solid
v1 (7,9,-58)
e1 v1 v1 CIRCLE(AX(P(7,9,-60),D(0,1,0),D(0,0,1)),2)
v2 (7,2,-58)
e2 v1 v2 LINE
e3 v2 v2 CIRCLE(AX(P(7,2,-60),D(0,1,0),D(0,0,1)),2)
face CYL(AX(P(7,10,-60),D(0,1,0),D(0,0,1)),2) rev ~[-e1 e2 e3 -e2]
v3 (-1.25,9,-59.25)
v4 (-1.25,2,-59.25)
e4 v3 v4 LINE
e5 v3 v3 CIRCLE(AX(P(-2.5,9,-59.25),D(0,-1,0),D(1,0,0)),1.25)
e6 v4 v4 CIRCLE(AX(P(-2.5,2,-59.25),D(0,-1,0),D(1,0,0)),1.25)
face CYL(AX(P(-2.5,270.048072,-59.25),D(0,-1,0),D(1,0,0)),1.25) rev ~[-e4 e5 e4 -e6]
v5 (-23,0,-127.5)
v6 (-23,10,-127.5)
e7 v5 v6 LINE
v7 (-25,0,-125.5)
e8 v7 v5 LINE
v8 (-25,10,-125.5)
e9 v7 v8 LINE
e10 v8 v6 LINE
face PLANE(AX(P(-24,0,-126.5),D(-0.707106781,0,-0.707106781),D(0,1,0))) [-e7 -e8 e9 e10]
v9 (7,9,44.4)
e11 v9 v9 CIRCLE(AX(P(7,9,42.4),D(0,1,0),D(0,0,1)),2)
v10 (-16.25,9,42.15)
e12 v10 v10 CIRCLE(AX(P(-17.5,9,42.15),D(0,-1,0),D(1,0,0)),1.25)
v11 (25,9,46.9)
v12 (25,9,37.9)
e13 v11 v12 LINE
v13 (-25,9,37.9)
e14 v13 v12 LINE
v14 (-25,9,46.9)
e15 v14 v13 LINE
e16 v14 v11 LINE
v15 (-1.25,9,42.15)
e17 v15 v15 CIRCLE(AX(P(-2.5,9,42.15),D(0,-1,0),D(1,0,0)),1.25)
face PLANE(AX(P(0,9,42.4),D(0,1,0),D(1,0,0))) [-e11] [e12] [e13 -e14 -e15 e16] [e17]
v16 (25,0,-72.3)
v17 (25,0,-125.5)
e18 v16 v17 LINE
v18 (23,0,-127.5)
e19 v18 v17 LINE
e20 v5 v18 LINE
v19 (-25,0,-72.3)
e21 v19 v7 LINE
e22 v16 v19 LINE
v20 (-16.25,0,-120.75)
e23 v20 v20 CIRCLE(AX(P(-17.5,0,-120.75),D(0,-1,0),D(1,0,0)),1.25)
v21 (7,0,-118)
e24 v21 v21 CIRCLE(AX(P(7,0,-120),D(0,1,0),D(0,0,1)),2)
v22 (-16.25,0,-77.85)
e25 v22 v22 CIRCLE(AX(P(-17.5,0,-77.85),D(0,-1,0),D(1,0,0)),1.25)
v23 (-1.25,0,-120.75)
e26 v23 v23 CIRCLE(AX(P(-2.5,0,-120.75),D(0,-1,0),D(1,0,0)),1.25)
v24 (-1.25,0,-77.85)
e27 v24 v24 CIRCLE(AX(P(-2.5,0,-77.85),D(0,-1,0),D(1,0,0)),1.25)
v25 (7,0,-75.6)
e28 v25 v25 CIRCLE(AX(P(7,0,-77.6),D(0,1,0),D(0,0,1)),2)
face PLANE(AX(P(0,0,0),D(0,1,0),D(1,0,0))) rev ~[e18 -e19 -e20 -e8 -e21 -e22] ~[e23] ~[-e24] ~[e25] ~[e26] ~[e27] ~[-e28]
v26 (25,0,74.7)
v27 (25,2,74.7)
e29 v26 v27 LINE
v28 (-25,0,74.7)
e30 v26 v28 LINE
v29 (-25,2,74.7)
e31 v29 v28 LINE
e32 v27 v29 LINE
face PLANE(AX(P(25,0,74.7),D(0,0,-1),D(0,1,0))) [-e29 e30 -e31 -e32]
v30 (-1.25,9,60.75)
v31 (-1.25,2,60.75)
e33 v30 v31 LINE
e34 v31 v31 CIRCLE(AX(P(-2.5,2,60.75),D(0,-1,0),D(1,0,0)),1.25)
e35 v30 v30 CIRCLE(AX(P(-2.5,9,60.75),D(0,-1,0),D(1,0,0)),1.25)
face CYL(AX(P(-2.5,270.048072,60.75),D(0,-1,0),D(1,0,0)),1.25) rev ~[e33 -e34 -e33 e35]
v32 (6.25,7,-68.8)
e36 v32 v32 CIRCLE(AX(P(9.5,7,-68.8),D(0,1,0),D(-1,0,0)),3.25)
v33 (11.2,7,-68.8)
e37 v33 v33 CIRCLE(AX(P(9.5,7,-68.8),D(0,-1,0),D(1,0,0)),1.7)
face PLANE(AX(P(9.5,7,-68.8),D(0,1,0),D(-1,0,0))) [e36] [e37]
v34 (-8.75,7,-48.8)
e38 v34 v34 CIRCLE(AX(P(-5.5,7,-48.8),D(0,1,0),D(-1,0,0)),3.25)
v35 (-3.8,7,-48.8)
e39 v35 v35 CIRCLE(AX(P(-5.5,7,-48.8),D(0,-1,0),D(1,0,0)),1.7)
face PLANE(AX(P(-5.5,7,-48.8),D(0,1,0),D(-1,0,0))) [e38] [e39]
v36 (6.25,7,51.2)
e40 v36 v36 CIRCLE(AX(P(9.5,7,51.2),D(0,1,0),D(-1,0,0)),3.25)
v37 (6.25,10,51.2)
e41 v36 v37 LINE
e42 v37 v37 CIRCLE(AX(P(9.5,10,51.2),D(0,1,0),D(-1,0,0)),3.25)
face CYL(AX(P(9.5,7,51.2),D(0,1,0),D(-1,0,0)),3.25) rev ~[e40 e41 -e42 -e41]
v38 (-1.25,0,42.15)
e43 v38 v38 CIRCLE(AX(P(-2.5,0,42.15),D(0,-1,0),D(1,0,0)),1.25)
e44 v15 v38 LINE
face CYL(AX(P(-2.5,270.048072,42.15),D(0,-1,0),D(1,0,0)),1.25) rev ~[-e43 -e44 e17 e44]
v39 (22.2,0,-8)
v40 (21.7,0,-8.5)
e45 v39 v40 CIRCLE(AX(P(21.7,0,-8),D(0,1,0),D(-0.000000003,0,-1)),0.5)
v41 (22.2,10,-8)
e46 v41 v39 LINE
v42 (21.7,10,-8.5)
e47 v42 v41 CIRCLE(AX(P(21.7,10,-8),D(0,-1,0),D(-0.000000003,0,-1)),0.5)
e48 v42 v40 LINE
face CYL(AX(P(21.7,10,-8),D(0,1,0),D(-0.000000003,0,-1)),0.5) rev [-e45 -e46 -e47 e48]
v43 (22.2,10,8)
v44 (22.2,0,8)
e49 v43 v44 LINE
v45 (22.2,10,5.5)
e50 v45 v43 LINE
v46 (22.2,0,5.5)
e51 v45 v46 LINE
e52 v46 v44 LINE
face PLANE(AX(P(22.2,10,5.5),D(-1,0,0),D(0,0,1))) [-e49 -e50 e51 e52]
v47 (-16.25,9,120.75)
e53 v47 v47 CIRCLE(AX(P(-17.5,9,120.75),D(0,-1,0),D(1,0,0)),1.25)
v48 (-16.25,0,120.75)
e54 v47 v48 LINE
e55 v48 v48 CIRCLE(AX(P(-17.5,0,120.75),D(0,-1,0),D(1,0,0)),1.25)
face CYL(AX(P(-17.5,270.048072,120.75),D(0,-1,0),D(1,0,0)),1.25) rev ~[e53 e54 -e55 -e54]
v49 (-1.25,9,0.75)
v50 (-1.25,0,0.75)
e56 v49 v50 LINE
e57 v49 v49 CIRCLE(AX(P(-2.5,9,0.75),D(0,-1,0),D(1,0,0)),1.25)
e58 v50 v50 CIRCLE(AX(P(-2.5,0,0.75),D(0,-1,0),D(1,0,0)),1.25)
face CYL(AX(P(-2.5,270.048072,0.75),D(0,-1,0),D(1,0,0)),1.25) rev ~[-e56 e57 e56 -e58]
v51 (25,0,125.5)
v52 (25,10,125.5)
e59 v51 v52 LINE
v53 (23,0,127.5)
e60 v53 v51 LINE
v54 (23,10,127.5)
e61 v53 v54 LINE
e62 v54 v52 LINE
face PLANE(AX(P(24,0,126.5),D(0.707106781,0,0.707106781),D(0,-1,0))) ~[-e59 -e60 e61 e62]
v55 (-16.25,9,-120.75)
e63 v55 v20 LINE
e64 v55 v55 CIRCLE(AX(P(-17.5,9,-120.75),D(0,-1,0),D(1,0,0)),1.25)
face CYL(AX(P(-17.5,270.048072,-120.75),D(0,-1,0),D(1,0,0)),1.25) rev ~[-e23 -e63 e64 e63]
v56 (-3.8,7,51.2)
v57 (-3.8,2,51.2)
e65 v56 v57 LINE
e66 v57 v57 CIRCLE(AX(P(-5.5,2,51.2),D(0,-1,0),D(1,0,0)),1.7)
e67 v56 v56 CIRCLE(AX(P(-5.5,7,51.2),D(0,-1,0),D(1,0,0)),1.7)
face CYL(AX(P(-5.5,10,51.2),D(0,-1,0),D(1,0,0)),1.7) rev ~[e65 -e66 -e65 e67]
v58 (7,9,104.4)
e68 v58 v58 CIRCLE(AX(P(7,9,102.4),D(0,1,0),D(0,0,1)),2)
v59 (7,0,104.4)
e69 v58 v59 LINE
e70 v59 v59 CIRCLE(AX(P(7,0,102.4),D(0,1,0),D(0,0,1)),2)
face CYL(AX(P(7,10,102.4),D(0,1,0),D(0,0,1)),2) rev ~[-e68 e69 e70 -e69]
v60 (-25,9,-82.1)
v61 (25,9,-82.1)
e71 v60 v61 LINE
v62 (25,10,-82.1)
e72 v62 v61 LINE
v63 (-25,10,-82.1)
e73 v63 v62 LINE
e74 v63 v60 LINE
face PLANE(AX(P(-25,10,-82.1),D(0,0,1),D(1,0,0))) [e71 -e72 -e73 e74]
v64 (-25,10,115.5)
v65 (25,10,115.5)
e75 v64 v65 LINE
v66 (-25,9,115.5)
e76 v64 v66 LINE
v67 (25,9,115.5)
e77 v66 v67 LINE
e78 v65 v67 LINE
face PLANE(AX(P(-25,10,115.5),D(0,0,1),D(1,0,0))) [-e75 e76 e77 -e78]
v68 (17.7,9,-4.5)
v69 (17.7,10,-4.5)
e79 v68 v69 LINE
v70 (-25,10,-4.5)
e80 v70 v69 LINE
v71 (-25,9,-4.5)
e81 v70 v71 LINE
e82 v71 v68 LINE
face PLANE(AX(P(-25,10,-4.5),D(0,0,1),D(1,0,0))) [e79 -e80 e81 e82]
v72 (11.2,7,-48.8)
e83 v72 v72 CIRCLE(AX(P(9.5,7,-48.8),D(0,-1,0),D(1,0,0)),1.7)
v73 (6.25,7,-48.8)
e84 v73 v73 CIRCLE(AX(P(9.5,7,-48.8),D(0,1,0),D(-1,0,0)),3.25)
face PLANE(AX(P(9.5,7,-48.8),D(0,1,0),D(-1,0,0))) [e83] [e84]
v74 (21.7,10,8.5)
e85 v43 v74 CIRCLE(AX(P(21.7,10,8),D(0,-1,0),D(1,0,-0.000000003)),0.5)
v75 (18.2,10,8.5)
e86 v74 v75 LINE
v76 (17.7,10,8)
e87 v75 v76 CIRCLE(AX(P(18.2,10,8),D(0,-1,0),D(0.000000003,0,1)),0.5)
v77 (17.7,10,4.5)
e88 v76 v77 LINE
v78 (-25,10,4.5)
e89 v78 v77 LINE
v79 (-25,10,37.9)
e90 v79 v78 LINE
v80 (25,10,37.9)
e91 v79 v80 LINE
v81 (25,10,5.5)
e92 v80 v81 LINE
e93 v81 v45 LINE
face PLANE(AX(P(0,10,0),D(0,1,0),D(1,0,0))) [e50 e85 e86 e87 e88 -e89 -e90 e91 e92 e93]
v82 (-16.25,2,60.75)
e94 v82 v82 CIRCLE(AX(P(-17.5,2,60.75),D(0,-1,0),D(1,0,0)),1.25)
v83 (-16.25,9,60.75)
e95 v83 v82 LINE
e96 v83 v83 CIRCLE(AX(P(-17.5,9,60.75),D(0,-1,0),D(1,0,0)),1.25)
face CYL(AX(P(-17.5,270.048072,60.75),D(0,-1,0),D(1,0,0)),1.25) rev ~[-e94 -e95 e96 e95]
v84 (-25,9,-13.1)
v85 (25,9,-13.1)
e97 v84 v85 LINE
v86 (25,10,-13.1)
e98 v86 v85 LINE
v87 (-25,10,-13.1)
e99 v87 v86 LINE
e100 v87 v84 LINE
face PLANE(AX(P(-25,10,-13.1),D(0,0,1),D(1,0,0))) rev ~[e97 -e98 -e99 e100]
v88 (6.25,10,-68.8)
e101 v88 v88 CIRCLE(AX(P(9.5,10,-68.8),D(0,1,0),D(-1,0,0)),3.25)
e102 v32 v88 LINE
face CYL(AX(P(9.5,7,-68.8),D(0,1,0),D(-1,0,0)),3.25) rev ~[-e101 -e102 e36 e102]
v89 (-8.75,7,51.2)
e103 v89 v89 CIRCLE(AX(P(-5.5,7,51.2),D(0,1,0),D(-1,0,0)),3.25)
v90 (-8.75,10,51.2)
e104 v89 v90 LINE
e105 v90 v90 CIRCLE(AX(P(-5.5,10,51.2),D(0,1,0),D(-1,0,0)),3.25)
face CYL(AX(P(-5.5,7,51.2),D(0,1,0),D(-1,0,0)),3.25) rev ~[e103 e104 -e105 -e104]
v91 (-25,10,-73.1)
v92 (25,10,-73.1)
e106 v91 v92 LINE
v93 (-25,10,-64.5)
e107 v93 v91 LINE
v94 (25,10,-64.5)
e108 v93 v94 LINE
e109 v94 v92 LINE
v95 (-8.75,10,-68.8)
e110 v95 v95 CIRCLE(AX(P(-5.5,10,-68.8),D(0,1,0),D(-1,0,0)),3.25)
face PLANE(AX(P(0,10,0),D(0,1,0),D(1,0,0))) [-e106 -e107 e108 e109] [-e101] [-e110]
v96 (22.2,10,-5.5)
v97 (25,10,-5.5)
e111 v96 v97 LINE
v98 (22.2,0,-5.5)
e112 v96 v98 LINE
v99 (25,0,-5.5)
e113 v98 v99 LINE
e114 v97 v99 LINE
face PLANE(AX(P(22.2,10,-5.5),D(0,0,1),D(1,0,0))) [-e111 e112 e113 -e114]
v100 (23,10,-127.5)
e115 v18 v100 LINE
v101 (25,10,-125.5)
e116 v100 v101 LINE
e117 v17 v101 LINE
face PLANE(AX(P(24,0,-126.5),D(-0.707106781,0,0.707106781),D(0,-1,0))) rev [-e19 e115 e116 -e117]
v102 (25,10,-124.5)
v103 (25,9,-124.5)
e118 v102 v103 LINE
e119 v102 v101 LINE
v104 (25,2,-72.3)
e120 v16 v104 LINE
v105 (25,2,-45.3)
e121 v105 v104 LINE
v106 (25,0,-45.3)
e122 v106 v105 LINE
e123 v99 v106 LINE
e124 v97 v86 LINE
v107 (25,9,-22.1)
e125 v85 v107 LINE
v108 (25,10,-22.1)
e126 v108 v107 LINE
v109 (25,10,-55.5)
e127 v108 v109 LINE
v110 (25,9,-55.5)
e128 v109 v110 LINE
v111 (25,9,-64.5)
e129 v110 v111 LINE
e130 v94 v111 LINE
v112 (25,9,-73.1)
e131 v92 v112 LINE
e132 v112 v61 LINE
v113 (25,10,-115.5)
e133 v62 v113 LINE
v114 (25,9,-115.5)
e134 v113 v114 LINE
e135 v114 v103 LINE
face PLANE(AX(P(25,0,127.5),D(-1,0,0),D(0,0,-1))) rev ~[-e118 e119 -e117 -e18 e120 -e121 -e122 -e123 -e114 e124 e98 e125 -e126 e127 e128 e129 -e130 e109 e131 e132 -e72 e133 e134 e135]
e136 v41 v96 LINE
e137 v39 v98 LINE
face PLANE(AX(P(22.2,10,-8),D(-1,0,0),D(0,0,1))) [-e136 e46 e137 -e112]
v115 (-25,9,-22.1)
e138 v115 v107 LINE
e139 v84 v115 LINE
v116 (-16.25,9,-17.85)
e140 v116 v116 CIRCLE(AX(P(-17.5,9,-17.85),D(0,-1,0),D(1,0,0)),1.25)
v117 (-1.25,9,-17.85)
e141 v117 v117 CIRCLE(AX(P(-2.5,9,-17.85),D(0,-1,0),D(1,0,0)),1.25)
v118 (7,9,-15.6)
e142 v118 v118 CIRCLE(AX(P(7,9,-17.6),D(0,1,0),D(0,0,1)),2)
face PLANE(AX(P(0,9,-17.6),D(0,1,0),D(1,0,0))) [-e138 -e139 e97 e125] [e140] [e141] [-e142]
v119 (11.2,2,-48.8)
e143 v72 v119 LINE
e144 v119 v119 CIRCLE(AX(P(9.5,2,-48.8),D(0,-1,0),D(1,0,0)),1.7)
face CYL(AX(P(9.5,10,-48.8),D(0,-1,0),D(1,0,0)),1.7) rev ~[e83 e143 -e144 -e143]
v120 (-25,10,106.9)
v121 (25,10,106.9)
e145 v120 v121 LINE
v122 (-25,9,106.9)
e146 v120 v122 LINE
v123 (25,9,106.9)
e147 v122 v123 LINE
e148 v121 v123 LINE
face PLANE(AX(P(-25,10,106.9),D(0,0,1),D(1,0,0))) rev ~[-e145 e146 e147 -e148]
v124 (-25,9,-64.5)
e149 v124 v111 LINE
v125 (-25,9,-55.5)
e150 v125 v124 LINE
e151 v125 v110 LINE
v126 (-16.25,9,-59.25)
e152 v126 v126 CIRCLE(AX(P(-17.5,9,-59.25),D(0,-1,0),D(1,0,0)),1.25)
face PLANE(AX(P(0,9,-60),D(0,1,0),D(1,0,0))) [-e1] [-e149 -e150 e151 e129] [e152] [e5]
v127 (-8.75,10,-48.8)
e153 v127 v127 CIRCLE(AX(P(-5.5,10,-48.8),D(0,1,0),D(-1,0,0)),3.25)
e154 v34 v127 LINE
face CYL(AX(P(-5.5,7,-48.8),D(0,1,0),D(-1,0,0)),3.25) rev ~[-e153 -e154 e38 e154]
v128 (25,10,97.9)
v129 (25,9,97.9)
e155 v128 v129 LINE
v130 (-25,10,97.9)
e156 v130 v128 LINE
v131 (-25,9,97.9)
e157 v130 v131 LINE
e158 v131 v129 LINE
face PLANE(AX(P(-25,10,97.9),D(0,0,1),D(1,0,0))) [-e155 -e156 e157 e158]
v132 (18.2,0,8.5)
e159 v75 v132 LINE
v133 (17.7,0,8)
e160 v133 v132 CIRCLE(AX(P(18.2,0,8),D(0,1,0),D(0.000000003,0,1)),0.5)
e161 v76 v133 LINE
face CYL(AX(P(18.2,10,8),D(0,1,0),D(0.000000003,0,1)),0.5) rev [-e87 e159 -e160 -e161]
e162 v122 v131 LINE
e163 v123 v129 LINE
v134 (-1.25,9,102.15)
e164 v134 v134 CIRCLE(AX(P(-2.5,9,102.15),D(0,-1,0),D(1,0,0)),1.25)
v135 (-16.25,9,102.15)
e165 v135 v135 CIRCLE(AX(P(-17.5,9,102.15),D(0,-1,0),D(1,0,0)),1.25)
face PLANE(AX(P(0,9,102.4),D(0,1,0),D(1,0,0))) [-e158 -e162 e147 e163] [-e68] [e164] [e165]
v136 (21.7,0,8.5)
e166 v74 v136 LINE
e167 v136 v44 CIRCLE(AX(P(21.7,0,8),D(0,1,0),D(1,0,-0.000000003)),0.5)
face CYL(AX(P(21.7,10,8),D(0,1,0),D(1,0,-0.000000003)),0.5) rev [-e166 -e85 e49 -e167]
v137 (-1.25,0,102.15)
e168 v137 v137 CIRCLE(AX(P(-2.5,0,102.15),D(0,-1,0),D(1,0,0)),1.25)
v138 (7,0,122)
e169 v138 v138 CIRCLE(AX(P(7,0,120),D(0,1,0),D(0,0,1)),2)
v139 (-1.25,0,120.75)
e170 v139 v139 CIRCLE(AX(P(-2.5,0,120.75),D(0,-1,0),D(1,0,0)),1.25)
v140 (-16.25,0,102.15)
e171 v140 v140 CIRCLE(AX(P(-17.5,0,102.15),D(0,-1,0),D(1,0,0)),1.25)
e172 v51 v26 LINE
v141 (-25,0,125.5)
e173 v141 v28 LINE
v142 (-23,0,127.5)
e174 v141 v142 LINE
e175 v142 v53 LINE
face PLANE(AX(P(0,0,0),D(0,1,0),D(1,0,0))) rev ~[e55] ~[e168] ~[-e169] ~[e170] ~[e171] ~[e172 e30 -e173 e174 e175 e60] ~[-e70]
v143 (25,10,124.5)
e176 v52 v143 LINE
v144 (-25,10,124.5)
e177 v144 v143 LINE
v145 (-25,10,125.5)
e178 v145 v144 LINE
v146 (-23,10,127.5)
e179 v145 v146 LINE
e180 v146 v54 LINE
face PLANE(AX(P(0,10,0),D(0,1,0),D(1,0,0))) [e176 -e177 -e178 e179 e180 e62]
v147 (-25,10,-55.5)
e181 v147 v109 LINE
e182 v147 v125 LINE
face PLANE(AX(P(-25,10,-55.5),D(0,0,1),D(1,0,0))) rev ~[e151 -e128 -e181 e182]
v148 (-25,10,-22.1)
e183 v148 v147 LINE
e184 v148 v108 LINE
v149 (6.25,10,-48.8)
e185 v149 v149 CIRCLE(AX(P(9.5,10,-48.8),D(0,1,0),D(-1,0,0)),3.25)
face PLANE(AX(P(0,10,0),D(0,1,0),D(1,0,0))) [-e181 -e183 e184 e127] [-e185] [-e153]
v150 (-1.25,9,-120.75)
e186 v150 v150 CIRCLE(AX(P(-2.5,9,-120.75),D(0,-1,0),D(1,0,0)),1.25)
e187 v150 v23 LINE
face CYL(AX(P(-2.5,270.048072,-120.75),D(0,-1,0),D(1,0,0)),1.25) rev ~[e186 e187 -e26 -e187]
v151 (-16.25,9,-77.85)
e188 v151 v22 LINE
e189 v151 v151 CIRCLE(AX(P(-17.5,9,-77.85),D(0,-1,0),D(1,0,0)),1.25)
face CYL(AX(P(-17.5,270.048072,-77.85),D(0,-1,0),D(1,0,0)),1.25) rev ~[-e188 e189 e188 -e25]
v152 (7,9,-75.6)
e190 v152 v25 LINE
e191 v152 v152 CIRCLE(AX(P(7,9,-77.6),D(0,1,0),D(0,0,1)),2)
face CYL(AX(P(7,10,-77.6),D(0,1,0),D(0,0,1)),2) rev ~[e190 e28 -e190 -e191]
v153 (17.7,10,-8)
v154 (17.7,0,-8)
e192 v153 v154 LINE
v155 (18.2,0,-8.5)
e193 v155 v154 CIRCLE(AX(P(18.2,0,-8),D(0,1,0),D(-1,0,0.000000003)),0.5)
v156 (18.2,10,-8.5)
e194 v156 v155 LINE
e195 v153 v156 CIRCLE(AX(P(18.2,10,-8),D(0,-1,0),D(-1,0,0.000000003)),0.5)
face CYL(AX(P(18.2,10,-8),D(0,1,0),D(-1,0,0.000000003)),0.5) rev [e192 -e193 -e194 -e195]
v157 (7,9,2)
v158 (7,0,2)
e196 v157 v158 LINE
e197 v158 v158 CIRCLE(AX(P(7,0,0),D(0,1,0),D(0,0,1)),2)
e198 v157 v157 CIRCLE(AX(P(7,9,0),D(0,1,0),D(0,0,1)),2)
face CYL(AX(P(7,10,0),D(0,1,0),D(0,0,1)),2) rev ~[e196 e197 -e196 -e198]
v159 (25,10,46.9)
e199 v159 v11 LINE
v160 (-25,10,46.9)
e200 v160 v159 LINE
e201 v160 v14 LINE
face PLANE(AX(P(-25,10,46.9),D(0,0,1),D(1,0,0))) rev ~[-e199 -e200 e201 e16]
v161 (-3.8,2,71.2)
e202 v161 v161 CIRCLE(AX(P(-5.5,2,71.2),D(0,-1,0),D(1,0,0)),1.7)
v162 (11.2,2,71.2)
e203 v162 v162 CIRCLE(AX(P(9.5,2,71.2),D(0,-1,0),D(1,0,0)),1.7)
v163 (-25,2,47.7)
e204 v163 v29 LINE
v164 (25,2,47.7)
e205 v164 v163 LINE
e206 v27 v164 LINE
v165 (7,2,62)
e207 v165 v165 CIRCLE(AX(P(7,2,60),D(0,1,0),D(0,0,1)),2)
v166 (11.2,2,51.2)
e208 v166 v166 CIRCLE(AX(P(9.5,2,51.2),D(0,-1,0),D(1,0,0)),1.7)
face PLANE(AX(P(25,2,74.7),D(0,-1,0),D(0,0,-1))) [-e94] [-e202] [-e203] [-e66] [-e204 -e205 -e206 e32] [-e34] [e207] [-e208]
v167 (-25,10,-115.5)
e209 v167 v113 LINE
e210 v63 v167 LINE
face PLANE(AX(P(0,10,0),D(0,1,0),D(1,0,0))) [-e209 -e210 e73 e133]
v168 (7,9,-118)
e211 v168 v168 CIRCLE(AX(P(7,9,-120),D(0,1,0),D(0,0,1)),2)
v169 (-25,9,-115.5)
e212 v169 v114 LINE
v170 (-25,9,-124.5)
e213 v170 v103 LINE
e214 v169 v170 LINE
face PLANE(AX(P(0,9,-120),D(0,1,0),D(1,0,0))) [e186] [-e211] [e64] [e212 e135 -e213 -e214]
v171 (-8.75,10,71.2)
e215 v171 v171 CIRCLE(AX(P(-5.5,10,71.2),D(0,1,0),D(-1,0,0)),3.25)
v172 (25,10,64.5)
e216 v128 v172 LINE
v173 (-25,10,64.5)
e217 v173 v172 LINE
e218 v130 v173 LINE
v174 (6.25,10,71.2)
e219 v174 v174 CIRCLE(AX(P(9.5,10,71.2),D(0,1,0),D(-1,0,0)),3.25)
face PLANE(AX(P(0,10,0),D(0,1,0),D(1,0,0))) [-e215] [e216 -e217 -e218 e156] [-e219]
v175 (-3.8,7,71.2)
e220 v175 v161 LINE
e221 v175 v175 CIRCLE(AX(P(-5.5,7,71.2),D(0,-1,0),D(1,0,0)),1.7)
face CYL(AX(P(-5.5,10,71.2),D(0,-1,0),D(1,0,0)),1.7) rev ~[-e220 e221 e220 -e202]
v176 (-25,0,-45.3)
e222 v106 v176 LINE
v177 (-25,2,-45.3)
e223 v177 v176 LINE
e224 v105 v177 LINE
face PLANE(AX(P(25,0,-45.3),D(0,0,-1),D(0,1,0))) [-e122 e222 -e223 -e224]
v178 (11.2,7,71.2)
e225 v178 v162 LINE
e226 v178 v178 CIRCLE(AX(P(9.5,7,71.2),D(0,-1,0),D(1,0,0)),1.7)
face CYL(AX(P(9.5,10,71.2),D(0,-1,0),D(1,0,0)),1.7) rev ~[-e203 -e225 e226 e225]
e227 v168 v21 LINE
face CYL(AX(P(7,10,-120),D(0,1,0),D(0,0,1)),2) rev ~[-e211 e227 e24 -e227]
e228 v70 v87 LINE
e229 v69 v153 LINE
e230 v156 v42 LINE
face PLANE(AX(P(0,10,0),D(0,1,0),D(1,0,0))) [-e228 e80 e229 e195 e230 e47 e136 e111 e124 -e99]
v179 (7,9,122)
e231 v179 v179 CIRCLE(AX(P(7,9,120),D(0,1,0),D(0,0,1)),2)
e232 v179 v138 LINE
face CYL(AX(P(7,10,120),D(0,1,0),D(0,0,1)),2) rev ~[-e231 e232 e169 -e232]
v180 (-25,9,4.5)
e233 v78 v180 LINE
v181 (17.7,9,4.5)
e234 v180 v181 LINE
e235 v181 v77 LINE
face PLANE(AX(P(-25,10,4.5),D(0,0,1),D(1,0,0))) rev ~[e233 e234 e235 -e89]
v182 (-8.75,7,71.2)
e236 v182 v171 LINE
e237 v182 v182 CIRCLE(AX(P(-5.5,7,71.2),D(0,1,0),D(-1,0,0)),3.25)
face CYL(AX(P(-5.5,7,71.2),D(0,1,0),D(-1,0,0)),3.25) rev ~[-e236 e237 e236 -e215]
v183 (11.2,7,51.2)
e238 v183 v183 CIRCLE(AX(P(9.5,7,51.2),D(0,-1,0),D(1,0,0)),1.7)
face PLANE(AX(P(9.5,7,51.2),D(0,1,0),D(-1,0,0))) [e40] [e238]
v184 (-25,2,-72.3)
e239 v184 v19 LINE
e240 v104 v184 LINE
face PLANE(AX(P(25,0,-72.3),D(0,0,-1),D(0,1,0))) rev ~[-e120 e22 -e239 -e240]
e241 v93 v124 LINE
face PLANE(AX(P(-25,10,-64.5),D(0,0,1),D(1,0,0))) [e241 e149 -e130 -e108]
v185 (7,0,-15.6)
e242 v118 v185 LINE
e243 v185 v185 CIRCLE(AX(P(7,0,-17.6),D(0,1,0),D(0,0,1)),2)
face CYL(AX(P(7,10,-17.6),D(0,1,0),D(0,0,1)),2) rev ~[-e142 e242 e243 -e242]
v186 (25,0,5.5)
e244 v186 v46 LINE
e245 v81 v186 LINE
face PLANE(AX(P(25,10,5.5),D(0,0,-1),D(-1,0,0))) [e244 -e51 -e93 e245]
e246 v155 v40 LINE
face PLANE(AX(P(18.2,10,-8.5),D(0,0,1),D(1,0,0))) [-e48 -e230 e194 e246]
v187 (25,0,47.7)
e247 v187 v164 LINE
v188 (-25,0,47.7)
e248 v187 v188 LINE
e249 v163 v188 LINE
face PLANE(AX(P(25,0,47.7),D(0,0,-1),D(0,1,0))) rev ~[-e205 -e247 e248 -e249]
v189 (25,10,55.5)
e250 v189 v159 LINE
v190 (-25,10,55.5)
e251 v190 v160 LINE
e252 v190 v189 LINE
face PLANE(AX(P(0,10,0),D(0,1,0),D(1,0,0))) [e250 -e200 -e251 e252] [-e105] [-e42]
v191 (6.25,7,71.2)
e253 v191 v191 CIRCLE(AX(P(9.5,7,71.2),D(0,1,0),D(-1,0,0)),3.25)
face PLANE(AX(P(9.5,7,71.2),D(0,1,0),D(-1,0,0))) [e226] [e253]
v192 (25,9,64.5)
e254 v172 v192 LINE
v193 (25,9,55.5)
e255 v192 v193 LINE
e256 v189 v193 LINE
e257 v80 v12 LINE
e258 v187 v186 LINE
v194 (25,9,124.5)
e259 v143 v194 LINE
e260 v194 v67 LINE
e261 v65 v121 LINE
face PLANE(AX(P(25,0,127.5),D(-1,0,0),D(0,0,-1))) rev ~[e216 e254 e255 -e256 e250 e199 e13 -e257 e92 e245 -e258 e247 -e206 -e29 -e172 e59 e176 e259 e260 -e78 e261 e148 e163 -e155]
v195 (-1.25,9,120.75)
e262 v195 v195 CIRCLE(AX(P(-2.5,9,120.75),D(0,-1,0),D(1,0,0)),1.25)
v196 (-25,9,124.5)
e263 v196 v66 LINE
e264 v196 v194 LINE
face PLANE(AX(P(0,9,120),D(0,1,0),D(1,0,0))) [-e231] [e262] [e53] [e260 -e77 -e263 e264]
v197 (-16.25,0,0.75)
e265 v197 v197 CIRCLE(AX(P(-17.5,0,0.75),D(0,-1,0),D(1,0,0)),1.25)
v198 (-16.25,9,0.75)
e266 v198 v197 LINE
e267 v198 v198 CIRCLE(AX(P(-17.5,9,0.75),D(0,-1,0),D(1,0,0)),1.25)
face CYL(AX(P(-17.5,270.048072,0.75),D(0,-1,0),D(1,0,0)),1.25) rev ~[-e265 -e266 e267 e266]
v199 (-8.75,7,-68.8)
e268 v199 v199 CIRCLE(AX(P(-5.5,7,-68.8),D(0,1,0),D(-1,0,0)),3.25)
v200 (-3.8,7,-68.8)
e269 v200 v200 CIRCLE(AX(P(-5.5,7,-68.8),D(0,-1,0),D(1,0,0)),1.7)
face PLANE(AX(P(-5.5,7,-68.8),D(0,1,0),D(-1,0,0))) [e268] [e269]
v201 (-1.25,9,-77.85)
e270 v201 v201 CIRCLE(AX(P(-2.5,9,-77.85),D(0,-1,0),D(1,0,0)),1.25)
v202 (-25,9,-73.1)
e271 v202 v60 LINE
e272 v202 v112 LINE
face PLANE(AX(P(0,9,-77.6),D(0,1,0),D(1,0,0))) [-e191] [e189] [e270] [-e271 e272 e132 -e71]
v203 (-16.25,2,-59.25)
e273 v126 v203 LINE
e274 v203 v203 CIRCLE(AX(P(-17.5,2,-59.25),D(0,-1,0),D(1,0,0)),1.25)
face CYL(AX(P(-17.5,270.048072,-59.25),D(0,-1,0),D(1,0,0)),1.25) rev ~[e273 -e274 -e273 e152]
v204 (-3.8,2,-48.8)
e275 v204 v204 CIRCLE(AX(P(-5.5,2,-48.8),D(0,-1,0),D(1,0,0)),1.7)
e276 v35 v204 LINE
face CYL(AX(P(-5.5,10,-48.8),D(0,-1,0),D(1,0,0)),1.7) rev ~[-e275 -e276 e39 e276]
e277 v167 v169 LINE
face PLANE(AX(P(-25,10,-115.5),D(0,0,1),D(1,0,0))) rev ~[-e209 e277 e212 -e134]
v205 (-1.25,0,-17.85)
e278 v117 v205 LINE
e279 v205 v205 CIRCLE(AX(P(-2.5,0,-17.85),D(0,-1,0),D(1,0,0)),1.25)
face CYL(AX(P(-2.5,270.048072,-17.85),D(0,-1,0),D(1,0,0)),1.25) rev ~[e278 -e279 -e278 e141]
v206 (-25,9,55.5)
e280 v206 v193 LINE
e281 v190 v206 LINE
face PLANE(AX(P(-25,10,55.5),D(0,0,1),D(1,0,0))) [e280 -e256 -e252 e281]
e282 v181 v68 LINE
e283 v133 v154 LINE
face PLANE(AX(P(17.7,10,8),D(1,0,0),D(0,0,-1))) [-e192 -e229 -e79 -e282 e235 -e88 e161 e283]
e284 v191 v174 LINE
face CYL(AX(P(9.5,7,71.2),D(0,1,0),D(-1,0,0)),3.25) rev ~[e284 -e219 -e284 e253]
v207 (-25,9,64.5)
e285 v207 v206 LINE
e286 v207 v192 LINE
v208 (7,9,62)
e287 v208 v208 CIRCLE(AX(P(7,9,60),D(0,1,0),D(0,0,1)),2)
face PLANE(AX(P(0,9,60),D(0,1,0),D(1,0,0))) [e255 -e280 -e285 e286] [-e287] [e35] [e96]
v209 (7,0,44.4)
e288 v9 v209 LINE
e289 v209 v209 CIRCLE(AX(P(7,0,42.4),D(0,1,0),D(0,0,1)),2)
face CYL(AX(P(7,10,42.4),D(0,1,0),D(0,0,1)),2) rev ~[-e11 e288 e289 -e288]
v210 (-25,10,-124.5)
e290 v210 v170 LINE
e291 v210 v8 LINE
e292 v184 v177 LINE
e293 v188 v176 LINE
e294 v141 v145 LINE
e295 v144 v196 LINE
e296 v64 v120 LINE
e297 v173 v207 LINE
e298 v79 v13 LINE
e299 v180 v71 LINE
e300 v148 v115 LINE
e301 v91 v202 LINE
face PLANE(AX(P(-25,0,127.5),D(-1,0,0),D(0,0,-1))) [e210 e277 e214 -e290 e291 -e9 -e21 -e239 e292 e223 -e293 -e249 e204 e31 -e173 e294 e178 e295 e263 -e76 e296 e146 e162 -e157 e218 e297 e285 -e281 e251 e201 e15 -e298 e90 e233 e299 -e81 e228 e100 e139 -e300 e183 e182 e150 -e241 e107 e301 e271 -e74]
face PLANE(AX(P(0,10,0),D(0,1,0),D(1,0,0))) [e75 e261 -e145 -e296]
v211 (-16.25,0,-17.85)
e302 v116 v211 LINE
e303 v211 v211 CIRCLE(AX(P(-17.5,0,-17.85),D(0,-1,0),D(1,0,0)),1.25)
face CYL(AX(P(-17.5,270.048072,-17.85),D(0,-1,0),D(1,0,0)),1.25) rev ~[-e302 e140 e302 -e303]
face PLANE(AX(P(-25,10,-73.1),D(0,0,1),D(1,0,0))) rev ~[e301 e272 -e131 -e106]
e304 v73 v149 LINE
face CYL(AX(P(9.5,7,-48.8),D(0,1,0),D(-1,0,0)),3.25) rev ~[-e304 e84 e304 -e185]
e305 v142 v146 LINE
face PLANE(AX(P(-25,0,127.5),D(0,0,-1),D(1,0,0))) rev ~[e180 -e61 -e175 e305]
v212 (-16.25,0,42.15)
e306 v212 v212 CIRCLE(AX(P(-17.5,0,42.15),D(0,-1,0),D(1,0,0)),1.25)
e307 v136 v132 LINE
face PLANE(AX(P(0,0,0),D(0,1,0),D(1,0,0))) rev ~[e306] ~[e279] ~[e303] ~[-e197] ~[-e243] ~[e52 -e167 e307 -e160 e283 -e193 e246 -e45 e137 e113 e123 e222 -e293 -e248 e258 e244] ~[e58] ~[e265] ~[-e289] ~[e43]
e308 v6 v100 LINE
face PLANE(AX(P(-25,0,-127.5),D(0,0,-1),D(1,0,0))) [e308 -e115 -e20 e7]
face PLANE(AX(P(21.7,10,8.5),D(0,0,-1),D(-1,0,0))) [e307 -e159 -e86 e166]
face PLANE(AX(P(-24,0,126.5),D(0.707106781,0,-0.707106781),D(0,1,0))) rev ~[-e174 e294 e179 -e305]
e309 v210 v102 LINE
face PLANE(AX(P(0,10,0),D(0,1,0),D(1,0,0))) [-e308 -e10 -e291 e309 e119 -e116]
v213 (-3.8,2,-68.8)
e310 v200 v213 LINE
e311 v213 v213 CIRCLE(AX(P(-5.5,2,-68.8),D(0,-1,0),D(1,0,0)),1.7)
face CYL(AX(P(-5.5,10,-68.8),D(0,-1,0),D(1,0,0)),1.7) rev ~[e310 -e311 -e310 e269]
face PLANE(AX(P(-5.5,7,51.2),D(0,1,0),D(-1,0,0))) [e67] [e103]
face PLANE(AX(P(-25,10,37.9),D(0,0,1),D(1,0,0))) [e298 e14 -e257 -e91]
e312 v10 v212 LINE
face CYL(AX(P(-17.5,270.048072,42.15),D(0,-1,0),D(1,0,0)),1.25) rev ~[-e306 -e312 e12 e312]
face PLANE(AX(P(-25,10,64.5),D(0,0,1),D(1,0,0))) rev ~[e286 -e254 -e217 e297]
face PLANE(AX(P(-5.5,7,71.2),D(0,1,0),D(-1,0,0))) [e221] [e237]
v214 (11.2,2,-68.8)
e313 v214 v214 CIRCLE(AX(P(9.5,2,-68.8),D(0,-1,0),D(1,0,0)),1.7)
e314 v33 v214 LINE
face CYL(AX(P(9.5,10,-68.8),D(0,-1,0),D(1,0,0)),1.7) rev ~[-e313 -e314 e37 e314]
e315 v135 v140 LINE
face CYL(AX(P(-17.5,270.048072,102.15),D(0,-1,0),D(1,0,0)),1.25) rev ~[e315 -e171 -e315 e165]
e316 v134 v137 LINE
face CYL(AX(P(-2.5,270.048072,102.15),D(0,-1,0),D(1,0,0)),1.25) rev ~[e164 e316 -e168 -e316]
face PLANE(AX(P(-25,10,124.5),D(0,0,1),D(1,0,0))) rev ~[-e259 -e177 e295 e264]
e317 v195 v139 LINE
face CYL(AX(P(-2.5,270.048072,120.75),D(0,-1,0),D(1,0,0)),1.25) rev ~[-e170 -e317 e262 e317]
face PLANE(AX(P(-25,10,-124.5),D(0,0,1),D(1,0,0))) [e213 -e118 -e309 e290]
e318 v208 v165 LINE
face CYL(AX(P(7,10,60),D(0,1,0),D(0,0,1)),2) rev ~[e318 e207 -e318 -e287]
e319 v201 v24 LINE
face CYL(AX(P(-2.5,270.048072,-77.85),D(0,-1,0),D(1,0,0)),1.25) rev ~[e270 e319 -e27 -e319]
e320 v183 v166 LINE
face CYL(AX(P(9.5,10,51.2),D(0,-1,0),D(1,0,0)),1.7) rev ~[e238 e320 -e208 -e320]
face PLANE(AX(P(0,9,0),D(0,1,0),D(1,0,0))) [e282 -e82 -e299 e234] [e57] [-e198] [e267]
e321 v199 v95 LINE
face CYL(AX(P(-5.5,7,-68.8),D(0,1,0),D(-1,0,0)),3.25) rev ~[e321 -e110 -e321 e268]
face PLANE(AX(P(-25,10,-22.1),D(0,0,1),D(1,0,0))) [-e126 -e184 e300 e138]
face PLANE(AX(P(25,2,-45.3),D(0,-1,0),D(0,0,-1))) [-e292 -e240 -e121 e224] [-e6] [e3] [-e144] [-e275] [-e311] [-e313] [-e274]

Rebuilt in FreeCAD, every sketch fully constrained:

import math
import FreeCAD as App
import Part
import Sketcher

V = App.Vector


def edges_at(feature, points):
    """Names of the edges that pass closest to the given points."""
    edges = feature.Shape.Edges
    near = lambda p: min(range(len(edges)), key=lambda i: edges[i].distToShape(Part.Vertex(*p))[0])
    return sorted({f"Edge{near(p) + 1}" for p in points})

doc = App.newDocument("Part")
body = doc.addObject("PartDesign::Body", "Body")

# Sketch on XZ plane
sketch1 = body.newObject("Sketcher::SketchObject", "Sketch")
sketch1.AttachmentSupport = (doc.getObject("XZ_Plane"), [""])
sketch1.MapMode = "FlatFace"
sketch1.addGeometry([
    Part.LineSegment(V(-25, -128, 0), V(-25, 128, 0)),
    Part.LineSegment(V(-25, 128, 0), V(25, 128, 0)),
    Part.LineSegment(V(25, 128, 0), V(25, -128, 0)),
    Part.LineSegment(V(25, -128, 0), V(-25, -128, 0)),
], False)
sketch1.addConstraint([
    Sketcher.Constraint("Coincident", 0, 2, 1, 1),
    Sketcher.Constraint("Coincident", 1, 2, 2, 1),
    Sketcher.Constraint("Coincident", 2, 2, 3, 1),
    Sketcher.Constraint("Coincident", 3, 2, 0, 1),
    Sketcher.Constraint("Vertical", 0),
    Sketcher.Constraint("Horizontal", 1),
    Sketcher.Constraint("Vertical", 2),
    Sketcher.Constraint("Horizontal", 3),
    Sketcher.Constraint("Symmetric", 0, 2, 2, 2, -1, 1),
    Sketcher.Constraint("DistanceX", 1, 1, 1, 2, 50.0),
    Sketcher.Constraint("DistanceY", 0, 1, 0, 2, 255.0),
])
pad1 = body.newObject("PartDesign::Pad", "Pad")
pad1.Profile = sketch1
pad1.Length = 10
pad1.Reversed = True

# Sketch on XZ plane
sketch2 = body.newObject("Sketcher::SketchObject", "Sketch001")
sketch2.AttachmentSupport = (doc.getObject("XZ_Plane"), [""])
sketch2.MapMode = "FlatFace"
sketch2.AttachmentOffset = App.Placement(V(0, 0, -10), App.Rotation())
sketch2.addGeometry([
    Part.LineSegment(V(-25, 116, 0), V(-25, 124, 0)),  # 0
    Part.LineSegment(V(-25, 124, 0), V(25, 124, 0)),  # 1
    Part.LineSegment(V(25, 124, 0), V(25, 116, 0)),  # 2
    Part.LineSegment(V(25, 116, 0), V(-25, 116, 0)),  # 3
    Part.LineSegment(V(-25, 98, 0), V(-25, 107, 0)),  # 4
    Part.LineSegment(V(-25, 107, 0), V(25, 107, 0)),  # 5
    Part.LineSegment(V(25, 107, 0), V(25, 98, 0)),  # 6
    Part.LineSegment(V(25, 98, 0), V(-25, 98, 0)),  # 7
], False)
sketch2.addConstraint([
    Sketcher.Constraint("Coincident", 0, 2, 1, 1),
    Sketcher.Constraint("Coincident", 1, 2, 2, 1),
    Sketcher.Constraint("Coincident", 2, 2, 3, 1),
    Sketcher.Constraint("Coincident", 3, 2, 0, 1),
    Sketcher.Constraint("Coincident", 4, 2, 5, 1),
    Sketcher.Constraint("Coincident", 5, 2, 6, 1),
    Sketcher.Constraint("Coincident", 6, 2, 7, 1),
    Sketcher.Constraint("Coincident", 7, 2, 4, 1),
    Sketcher.Constraint("Vertical", 0),
    Sketcher.Constraint("Horizontal", 1),
    Sketcher.Constraint("Vertical", 2),
    Sketcher.Constraint("Horizontal", 3),
    Sketcher.Constraint("Vertical", 4),
    Sketcher.Constraint("Horizontal", 5),
    Sketcher.Constraint("Vertical", 6),
    Sketcher.Constraint("Horizontal", 7),
    Sketcher.Constraint("Vertical", 3, 2, 4, 2),
    Sketcher.Constraint("Vertical", 2, 2, 5, 2),
    Sketcher.Constraint("Equal", 2, 4),
    Sketcher.Constraint("DistanceX", 1, 1, 1, 2, 50.0),
    Sketcher.Constraint("DistanceY", 0, 1, 0, 2, 9.0),
    Sketcher.Constraint("DistanceX", 0, 2, -1, 1, 25.0),
    Sketcher.Constraint("DistanceY", -1, 1, 0, 2, 124.5),
    Sketcher.Constraint("DistanceY", -1, 1, 4, 2, 106.9),
])
pocket1 = body.newObject("PartDesign::Pocket", "Pocket")
pocket1.Profile = sketch2
pocket1.Length = 1
pocket1.Reversed = True
doc.recompute()

linearpattern = body.newObject("PartDesign::LinearPattern", "LinearPattern")
linearpattern.Originals = [pocket1]
linearpattern.Direction = (doc.getObject("Z_Axis"), [""])
linearpattern.Mode = "offset"
linearpattern.Offset = 60
linearpattern.Occurrences = 5
linearpattern.Reversed = True
body.Tip = linearpattern

# Sketch on XZ plane
sketch3 = body.newObject("Sketcher::SketchObject", "Sketch002")
sketch3.AttachmentSupport = (doc.getObject("XZ_Plane"), [""])
sketch3.MapMode = "FlatFace"
sketch3.AttachmentOffset = App.Placement(V(0, 0, -10), App.Rotation())
sketch3.addGeometry(Part.Circle(V(-5.5, 51.2, 0), V(0, 0, 1), 1.7), False)
sketch3.addConstraint([
    Sketcher.Constraint("Diameter", 0, 3.4),
    Sketcher.Constraint("DistanceX", 0, 3, -1, 1, 5.5),
    Sketcher.Constraint("DistanceY", -1, 1, 0, 3, 51.2),
])
doc.recompute()
hole = body.newObject("PartDesign::Hole", "Hole")
hole.Profile = sketch3
hole.ThreadType = "None"
hole.Diameter = 3.4
hole.DepthType = "ThroughAll"
hole.HoleCutType = "Counterbore"
hole.HoleCutDiameter = 6.5
hole.HoleCutDepth = 3
hole.Reversed = True
doc.recompute()

linearpattern2 = body.newObject("PartDesign::LinearPattern", "LinearPattern001")
linearpattern2.Originals = [hole]
linearpattern2.Direction = (doc.getObject("X_Axis"), [""])
linearpattern2.Mode = "offset"
linearpattern2.Offset = 15
linearpattern2.Occurrences = 2
body.Tip = linearpattern2
doc.recompute()

linearpattern3 = body.newObject("PartDesign::LinearPattern", "LinearPattern002")
linearpattern3.Originals = [hole]
linearpattern3.Direction = (doc.getObject("Z_Axis"), [""])
linearpattern3.Mode = "offset"
linearpattern3.Offset = 120
linearpattern3.Occurrences = 2
linearpattern3.Reversed = True
body.Tip = linearpattern3

# Sketch on XZ plane
sketch4 = body.newObject("Sketcher::SketchObject", "Sketch003")
sketch4.AttachmentSupport = (doc.getObject("XZ_Plane"), [""])
sketch4.MapMode = "FlatFace"
sketch4.AttachmentOffset = App.Placement(V(0, 0, -10), App.Rotation())
sketch4.addGeometry(Part.Circle(V(9.5, -68.8, 0), V(0, 0, 1), 1.7), False)
sketch4.addConstraint([
    Sketcher.Constraint("Diameter", 0, 3.4),
    Sketcher.Constraint("DistanceX", -1, 1, 0, 3, 9.5),
    Sketcher.Constraint("DistanceY", 0, 3, -1, 1, 68.8),
])
doc.recompute()
hole2 = body.newObject("PartDesign::Hole", "Hole001")
hole2.Profile = sketch4
hole2.ThreadType = "None"
hole2.Diameter = 3.4
hole2.DepthType = "ThroughAll"
hole2.HoleCutType = "Counterbore"
hole2.HoleCutDiameter = 6.5
hole2.HoleCutDepth = 3
hole2.Reversed = True
doc.recompute()

linearpattern4 = body.newObject("PartDesign::LinearPattern", "LinearPattern003")
linearpattern4.Originals = [hole]
linearpattern4.Direction = (doc.getObject("Z_Axis"), [""])
linearpattern4.Mode = "offset"
linearpattern4.Offset = 20
linearpattern4.Occurrences = 2
body.Tip = linearpattern4

# Sketch on XZ plane
sketch5 = body.newObject("Sketcher::SketchObject", "Sketch004")
sketch5.AttachmentSupport = (doc.getObject("XZ_Plane"), [""])
sketch5.MapMode = "FlatFace"
sketch5.AttachmentOffset = App.Placement(V(0, 0, -10), App.Rotation())
sketch5.addGeometry(Part.Circle(V(9.5, 71.2, 0), V(0, 0, 1), 1.7), False)
sketch5.addConstraint([
    Sketcher.Constraint("Diameter", 0, 3.4),
    Sketcher.Constraint("DistanceX", -1, 1, 0, 3, 9.5),
    Sketcher.Constraint("DistanceY", -1, 1, 0, 3, 71.2),
])
doc.recompute()
hole3 = body.newObject("PartDesign::Hole", "Hole002")
hole3.Profile = sketch5
hole3.ThreadType = "None"
hole3.Diameter = 3.4
hole3.DepthType = "ThroughAll"
hole3.HoleCutType = "Counterbore"
hole3.HoleCutDiameter = 6.5
hole3.HoleCutDepth = 3
hole3.Reversed = True

# Sketch on XZ plane
sketch6 = body.newObject("Sketcher::SketchObject", "Sketch005")
sketch6.AttachmentSupport = (doc.getObject("XZ_Plane"), [""])
sketch6.MapMode = "FlatFace"
sketch6.AttachmentOffset = App.Placement(V(0, 0, -10), App.Rotation())
sketch6.addGeometry(Part.Circle(V(-5.5, -48.8, 0), V(0, 0, 1), 1.7), False)
sketch6.addConstraint([
    Sketcher.Constraint("Diameter", 0, 3.4),
    Sketcher.Constraint("DistanceX", 0, 3, -1, 1, 5.5),
    Sketcher.Constraint("DistanceY", 0, 3, -1, 1, 48.8),
])
doc.recompute()
hole4 = body.newObject("PartDesign::Hole", "Hole003")
hole4.Profile = sketch6
hole4.ThreadType = "None"
hole4.Diameter = 3.4
hole4.DepthType = "ThroughAll"
hole4.HoleCutType = "Counterbore"
hole4.HoleCutDiameter = 6.5
hole4.HoleCutDepth = 3
hole4.Reversed = True

# Sketch on XZ plane
sketch7 = body.newObject("Sketcher::SketchObject", "Sketch006")
sketch7.AttachmentSupport = (doc.getObject("XZ_Plane"), [""])
sketch7.MapMode = "FlatFace"
sketch7.AttachmentOffset = App.Placement(V(0, 0, -10), App.Rotation())
sketch7.addGeometry(Part.Circle(V(9.5, -48.8, 0), V(0, 0, 1), 1.7), False)
sketch7.addConstraint([
    Sketcher.Constraint("Diameter", 0, 3.4),
    Sketcher.Constraint("DistanceX", -1, 1, 0, 3, 9.5),
    Sketcher.Constraint("DistanceY", 0, 3, -1, 1, 48.8),
])
doc.recompute()
hole5 = body.newObject("PartDesign::Hole", "Hole004")
hole5.Profile = sketch7
hole5.ThreadType = "None"
hole5.Diameter = 3.4
hole5.DepthType = "ThroughAll"
hole5.HoleCutType = "Counterbore"
hole5.HoleCutDiameter = 6.5
hole5.HoleCutDepth = 3
hole5.Reversed = True

# Sketch on YZ plane
sketch8 = body.newObject("Sketcher::SketchObject", "Sketch007")
sketch8.AttachmentSupport = (doc.getObject("YZ_Plane"), [""])
sketch8.MapMode = "FlatFace"
sketch8.AttachmentOffset = App.Placement(V(0, 0, 25), App.Rotation())
sketch8.addGeometry([
    Part.LineSegment(V(2, 74.7, 0), V(0, 74.7, 0)),
    Part.LineSegment(V(0, 74.7, 0), V(0, 47.7, 0)),
    Part.LineSegment(V(0, 47.7, 0), V(2, 47.7, 0)),
    Part.LineSegment(V(2, 47.7, 0), V(2, 74.7, 0)),
], False)
sketch8.addConstraint([
    Sketcher.Constraint("Coincident", 0, 2, 1, 1),
    Sketcher.Constraint("Coincident", 1, 2, 2, 1),
    Sketcher.Constraint("Coincident", 2, 2, 3, 1),
    Sketcher.Constraint("Coincident", 3, 2, 0, 1),
    Sketcher.Constraint("Horizontal", 0),
    Sketcher.Constraint("Vertical", 1),
    Sketcher.Constraint("Horizontal", 2),
    Sketcher.Constraint("Vertical", 3),
    Sketcher.Constraint("PointOnObject", 0, 2, -2),
    Sketcher.Constraint("DistanceX", 0, 2, 0, 1, 2.0),
    Sketcher.Constraint("DistanceY", 1, 2, 1, 1, 27.0),
    Sketcher.Constraint("DistanceY", -1, 1, 0, 2, 74.7),
])
pocket2 = body.newObject("PartDesign::Pocket", "Pocket001")
pocket2.Profile = sketch8
pocket2.Type = "ThroughAll"
doc.recompute()

linearpattern5 = body.newObject("PartDesign::LinearPattern", "LinearPattern004")
linearpattern5.Originals = [pocket2]
linearpattern5.Direction = (doc.getObject("Z_Axis"), [""])
linearpattern5.Mode = "offset"
linearpattern5.Offset = 120
linearpattern5.Occurrences = 2
linearpattern5.Reversed = True
body.Tip = linearpattern5

# Sketch on XZ plane
sketch9 = body.newObject("Sketcher::SketchObject", "Sketch008")
sketch9.AttachmentSupport = (doc.getObject("XZ_Plane"), [""])
sketch9.MapMode = "FlatFace"
sketch9.AttachmentOffset = App.Placement(V(0, 0, -10), App.Rotation())
sketch9.addGeometry([
    Part.LineSegment(V(22.2, 5.5, 0), V(25, 5.5, 0)),  # 0
    Part.LineSegment(V(25, 5.5, 0), V(25, -5.5, 0)),  # 1
    Part.LineSegment(V(25, -5.5, 0), V(22.2, -5.5, 0)),  # 2
    Part.LineSegment(V(22.2, -5.5, 0), V(22.2, -8, 0)),  # 3
    Part.ArcOfCircle(Part.Circle(V(21.7, -8, 0), V(0, 0, 1), 0.5), math.radians(-90), math.radians(0)),  # 4
    Part.LineSegment(V(21.7, -8.5, 0), V(18.2, -8.5, 0)),  # 5
    Part.ArcOfCircle(Part.Circle(V(18.2, -8, 0), V(0, 0, 1), 0.5), math.radians(180), math.radians(270)),  # 6
    Part.LineSegment(V(17.7, -8, 0), V(17.7, 8, 0)),  # 7
    Part.ArcOfCircle(Part.Circle(V(18.2, 8, 0), V(0, 0, 1), 0.5), math.radians(90), math.radians(180)),  # 8
    Part.LineSegment(V(18.2, 8.5, 0), V(21.7, 8.5, 0)),  # 9
    Part.ArcOfCircle(Part.Circle(V(21.7, 8, 0), V(0, 0, 1), 0.5), math.radians(0), math.radians(90)),  # 10
    Part.LineSegment(V(22.2, 8, 0), V(22.2, 5.5, 0)),  # 11
], False)
sketch9.addConstraint([
    Sketcher.Constraint("Coincident", 0, 2, 1, 1),
    Sketcher.Constraint("Coincident", 1, 2, 2, 1),
    Sketcher.Constraint("Coincident", 2, 2, 3, 1),
    Sketcher.Constraint("Tangent", 3, 2, 4, 2),
    Sketcher.Constraint("Tangent", 4, 1, 5, 1),
    Sketcher.Constraint("Tangent", 5, 2, 6, 2),
    Sketcher.Constraint("Tangent", 6, 1, 7, 1),
    Sketcher.Constraint("Tangent", 7, 2, 8, 2),
    Sketcher.Constraint("Tangent", 8, 1, 9, 1),
    Sketcher.Constraint("Tangent", 9, 2, 10, 2),
    Sketcher.Constraint("Tangent", 10, 1, 11, 1),
    Sketcher.Constraint("Coincident", 11, 2, 0, 1),
    Sketcher.Constraint("Horizontal", 0),
    Sketcher.Constraint("Vertical", 1),
    Sketcher.Constraint("Horizontal", 2),
    Sketcher.Constraint("Vertical", 3),
    Sketcher.Constraint("Horizontal", 5),
    Sketcher.Constraint("Vertical", 7),
    Sketcher.Constraint("Horizontal", 9),
    Sketcher.Constraint("Vertical", 11),
    Sketcher.Constraint("Equal", 4, 6),
    Sketcher.Constraint("Equal", 6, 8),
    Sketcher.Constraint("Equal", 8, 10),
    Sketcher.Constraint("Symmetric", 4, 3, 10, 3, -1),
    Sketcher.Constraint("Equal", 3, 11),
    Sketcher.Constraint("Radius", 4, 0.5),
    Sketcher.Constraint("DistanceY", 1, 2, 1, 1, 11.0),
    Sketcher.Constraint("DistanceY", 7, 1, 7, 2, 16.0),
    Sketcher.Constraint("DistanceX", 0, 1, 0, 2, 2.8),
    Sketcher.Constraint("DistanceX", 5, 2, 5, 1, 3.5),
    Sketcher.Constraint("DistanceX", -1, 1, 0, 2, 25.0),
])
pocket3 = body.newObject("PartDesign::Pocket", "Pocket002")
pocket3.Profile = sketch9
pocket3.Type = "ThroughAll"
pocket3.Reversed = True
doc.recompute()

chamfer = body.newObject("PartDesign::Chamfer", "Chamfer")
chamfer.Base = (pocket3, edges_at(pocket3, [
    (25, 5, 127.5),
    (-25, 5, 127.5),
    (-25, 5, -127.5),
    (25, 5, -127.5),
]))
chamfer.Size = 2

# Sketch on XZ plane
sketch10 = body.newObject("Sketcher::SketchObject", "Sketch009")
sketch10.AttachmentSupport = (doc.getObject("XZ_Plane"), [""])
sketch10.MapMode = "FlatFace"
sketch10.AttachmentOffset = App.Placement(V(0, 0, -10), App.Rotation())
sketch10.addGeometry([
    Part.Circle(V(-17.5, 120.8, 0), V(0, 0, 1), 1.2),  # 0
    Part.Circle(V(-17.5, 102.2, 0), V(0, 0, 1), 1.2),  # 1
    Part.Circle(V(-2.5, 120.8, 0), V(0, 0, 1), 1.2),  # 2
    Part.Circle(V(-2.5, 102.2, 0), V(0, 0, 1), 1.2),  # 3
    Part.Circle(V(-17.5, 60.8, 0), V(0, 0, 1), 1.2),  # 4
    Part.Circle(V(-2.5, 60.8, 0), V(0, 0, 1), 1.2),  # 5
    Part.Circle(V(-2.5, 42.1, 0), V(0, 0, 1), 1.2),  # 6
    Part.Circle(V(-17.5, 42.1, 0), V(0, 0, 1), 1.2),  # 7
    Part.Circle(V(-17.5, 0.8, 0), V(0, 0, 1), 1.2),  # 8
    Part.Circle(V(-2.5, 0.8, 0), V(0, 0, 1), 1.2),  # 9
    Part.Circle(V(-2.5, -17.9, 0), V(0, 0, 1), 1.2),  # 10
    Part.Circle(V(-17.5, -17.9, 0), V(0, 0, 1), 1.2),  # 11
    Part.Circle(V(-17.5, -59.2, 0), V(0, 0, 1), 1.2),  # 12
    Part.Circle(V(-2.5, -59.2, 0), V(0, 0, 1), 1.2),  # 13
    Part.Circle(V(-2.5, -77.8, 0), V(0, 0, 1), 1.2),  # 14
    Part.Circle(V(-17.5, -77.8, 0), V(0, 0, 1), 1.2),  # 15
    Part.Circle(V(-17.5, -120.8, 0), V(0, 0, 1), 1.2),  # 16
    Part.Circle(V(-2.5, -120.8, 0), V(0, 0, 1), 1.2),  # 17
], False)
sketch10.addConstraint([
    Sketcher.Constraint("Equal", 0, 1),
    Sketcher.Constraint("Equal", 1, 2),
    Sketcher.Constraint("Equal", 2, 3),
    Sketcher.Constraint("Equal", 3, 4),
    Sketcher.Constraint("Equal", 4, 5),
    Sketcher.Constraint("Equal", 5, 6),
    Sketcher.Constraint("Equal", 6, 7),
    Sketcher.Constraint("Equal", 7, 8),
    Sketcher.Constraint("Equal", 8, 9),
    Sketcher.Constraint("Equal", 9, 10),
    Sketcher.Constraint("Equal", 10, 11),
    Sketcher.Constraint("Equal", 11, 12),
    Sketcher.Constraint("Equal", 12, 13),
    Sketcher.Constraint("Equal", 13, 14),
    Sketcher.Constraint("Equal", 14, 15),
    Sketcher.Constraint("Equal", 15, 16),
    Sketcher.Constraint("Equal", 16, 17),
    Sketcher.Constraint("Symmetric", 0, 3, 16, 3, -1),
    Sketcher.Constraint("Symmetric", 2, 3, 17, 3, -1),
    Sketcher.Constraint("Horizontal", 0, 3, 2, 3),
    Sketcher.Constraint("Horizontal", 1, 3, 3, 3),
    Sketcher.Constraint("Horizontal", 4, 3, 5, 3),
    Sketcher.Constraint("Horizontal", 6, 3, 7, 3),
    Sketcher.Constraint("Horizontal", 8, 3, 9, 3),
    Sketcher.Constraint("Horizontal", 10, 3, 11, 3),
    Sketcher.Constraint("Horizontal", 12, 3, 13, 3),
    Sketcher.Constraint("Horizontal", 14, 3, 15, 3),
    Sketcher.Constraint("Vertical", 0, 3, 1, 3),
    Sketcher.Constraint("Vertical", 2, 3, 3, 3),
    Sketcher.Constraint("Vertical", 1, 3, 4, 3),
    Sketcher.Constraint("Vertical", 3, 3, 5, 3),
    Sketcher.Constraint("Vertical", 5, 3, 6, 3),
    Sketcher.Constraint("Vertical", 4, 3, 7, 3),
    Sketcher.Constraint("Vertical", 7, 3, 8, 3),
    Sketcher.Constraint("Vertical", 6, 3, 9, 3),
    Sketcher.Constraint("Vertical", 9, 3, 10, 3),
    Sketcher.Constraint("Vertical", 8, 3, 11, 3),
    Sketcher.Constraint("Vertical", 11, 3, 12, 3),
    Sketcher.Constraint("Vertical", 10, 3, 13, 3),
    Sketcher.Constraint("Vertical", 13, 3, 14, 3),
    Sketcher.Constraint("Vertical", 12, 3, 15, 3),
    Sketcher.Constraint("Diameter", 0, 2.5),
    Sketcher.Constraint("DistanceX", 0, 3, 2, 3, 15.0),
    Sketcher.Constraint("DistanceY", 4, 3, 0, 3, 60.0),
    Sketcher.Constraint("DistanceY", 6, 3, 3, 3, 60.0),
    Sketcher.Constraint("DistanceY", 8, 3, 4, 3, 60.0),
    Sketcher.Constraint("DistanceY", 10, 3, 6, 3, 60.0),
    Sketcher.Constraint("DistanceY", 12, 3, 8, 3, 60.0),
    Sketcher.Constraint("DistanceY", 14, 3, 10, 3, 60.0),
    Sketcher.Constraint("DistanceX", 0, 3, -1, 1, 17.5),
    Sketcher.Constraint("DistanceY", 1, 3, 0, 3, 18.6),
    Sketcher.Constraint("DistanceY", 16, 3, 15, 3, 42.9),
])
doc.recompute()
hole6 = body.newObject("PartDesign::Hole", "Hole005")
hole6.Profile = sketch10
hole6.ThreadType = "None"
hole6.Diameter = 2.5
hole6.DepthType = "ThroughAll"
hole6.Reversed = True

# Sketch on XZ plane
sketch11 = body.newObject("Sketcher::SketchObject", "Sketch010")
sketch11.AttachmentSupport = (doc.getObject("XZ_Plane"), [""])
sketch11.MapMode = "FlatFace"
sketch11.AttachmentOffset = App.Placement(V(0, 0, -10), App.Rotation())
sketch11.addGeometry([
    Part.Circle(V(7, -120, 0), V(0, 0, 1), 2),  # 0
    Part.Circle(V(7, -77.6, 0), V(0, 0, 1), 2),  # 1
    Part.Circle(V(7, -60, 0), V(0, 0, 1), 2),  # 2
    Part.Circle(V(7, -17.6, 0), V(0, 0, 1), 2),  # 3
    Part.Circle(V(7, 0, 0), V(0, 0, 1), 2),  # 4
    Part.Circle(V(7, 42.4, 0), V(0, 0, 1), 2),  # 5
    Part.Circle(V(7, 60, 0), V(0, 0, 1), 2),  # 6
    Part.Circle(V(7, 102.4, 0), V(0, 0, 1), 2),  # 7
    Part.Circle(V(7, 120, 0), V(0, 0, 1), 2),  # 8
], False)
sketch11.addConstraint([
    Sketcher.Constraint("Equal", 0, 1),
    Sketcher.Constraint("Equal", 1, 2),
    Sketcher.Constraint("Equal", 2, 3),
    Sketcher.Constraint("Equal", 3, 4),
    Sketcher.Constraint("Equal", 4, 5),
    Sketcher.Constraint("Equal", 5, 6),
    Sketcher.Constraint("Equal", 6, 7),
    Sketcher.Constraint("Equal", 7, 8),
    Sketcher.Constraint("Symmetric", 2, 3, 6, 3, -1),
    Sketcher.Constraint("Symmetric", 0, 3, 8, 3, -1),
    Sketcher.Constraint("PointOnObject", 4, 3, -1),
    Sketcher.Constraint("Vertical", 0, 3, 1, 3),
    Sketcher.Constraint("Vertical", 1, 3, 2, 3),
    Sketcher.Constraint("Vertical", 2, 3, 3, 3),
    Sketcher.Constraint("Vertical", 3, 3, 4, 3),
    Sketcher.Constraint("Vertical", 4, 3, 5, 3),
    Sketcher.Constraint("Vertical", 6, 3, 7, 3),
    Sketcher.Constraint("Diameter", 0, 4.0),
    Sketcher.Constraint("DistanceX", -1, 1, 0, 3, 7.0),
    Sketcher.Constraint("DistanceY", 0, 3, -1, 1, 120.0),
    Sketcher.Constraint("DistanceY", 2, 3, -1, 1, 60.0),
    Sketcher.Constraint("DistanceY", 1, 3, 3, 3, 60.0),
    Sketcher.Constraint("DistanceY", 3, 3, 5, 3, 60.0),
    Sketcher.Constraint("DistanceY", 5, 3, 7, 3, 60.0),
    Sketcher.Constraint("DistanceY", 1, 3, -1, 1, 77.6),
])
pocket4 = body.newObject("PartDesign::Pocket", "Pocket003")
pocket4.Profile = sketch11
pocket4.Type = "ThroughAll"
pocket4.Reversed = True

doc.recompute()
